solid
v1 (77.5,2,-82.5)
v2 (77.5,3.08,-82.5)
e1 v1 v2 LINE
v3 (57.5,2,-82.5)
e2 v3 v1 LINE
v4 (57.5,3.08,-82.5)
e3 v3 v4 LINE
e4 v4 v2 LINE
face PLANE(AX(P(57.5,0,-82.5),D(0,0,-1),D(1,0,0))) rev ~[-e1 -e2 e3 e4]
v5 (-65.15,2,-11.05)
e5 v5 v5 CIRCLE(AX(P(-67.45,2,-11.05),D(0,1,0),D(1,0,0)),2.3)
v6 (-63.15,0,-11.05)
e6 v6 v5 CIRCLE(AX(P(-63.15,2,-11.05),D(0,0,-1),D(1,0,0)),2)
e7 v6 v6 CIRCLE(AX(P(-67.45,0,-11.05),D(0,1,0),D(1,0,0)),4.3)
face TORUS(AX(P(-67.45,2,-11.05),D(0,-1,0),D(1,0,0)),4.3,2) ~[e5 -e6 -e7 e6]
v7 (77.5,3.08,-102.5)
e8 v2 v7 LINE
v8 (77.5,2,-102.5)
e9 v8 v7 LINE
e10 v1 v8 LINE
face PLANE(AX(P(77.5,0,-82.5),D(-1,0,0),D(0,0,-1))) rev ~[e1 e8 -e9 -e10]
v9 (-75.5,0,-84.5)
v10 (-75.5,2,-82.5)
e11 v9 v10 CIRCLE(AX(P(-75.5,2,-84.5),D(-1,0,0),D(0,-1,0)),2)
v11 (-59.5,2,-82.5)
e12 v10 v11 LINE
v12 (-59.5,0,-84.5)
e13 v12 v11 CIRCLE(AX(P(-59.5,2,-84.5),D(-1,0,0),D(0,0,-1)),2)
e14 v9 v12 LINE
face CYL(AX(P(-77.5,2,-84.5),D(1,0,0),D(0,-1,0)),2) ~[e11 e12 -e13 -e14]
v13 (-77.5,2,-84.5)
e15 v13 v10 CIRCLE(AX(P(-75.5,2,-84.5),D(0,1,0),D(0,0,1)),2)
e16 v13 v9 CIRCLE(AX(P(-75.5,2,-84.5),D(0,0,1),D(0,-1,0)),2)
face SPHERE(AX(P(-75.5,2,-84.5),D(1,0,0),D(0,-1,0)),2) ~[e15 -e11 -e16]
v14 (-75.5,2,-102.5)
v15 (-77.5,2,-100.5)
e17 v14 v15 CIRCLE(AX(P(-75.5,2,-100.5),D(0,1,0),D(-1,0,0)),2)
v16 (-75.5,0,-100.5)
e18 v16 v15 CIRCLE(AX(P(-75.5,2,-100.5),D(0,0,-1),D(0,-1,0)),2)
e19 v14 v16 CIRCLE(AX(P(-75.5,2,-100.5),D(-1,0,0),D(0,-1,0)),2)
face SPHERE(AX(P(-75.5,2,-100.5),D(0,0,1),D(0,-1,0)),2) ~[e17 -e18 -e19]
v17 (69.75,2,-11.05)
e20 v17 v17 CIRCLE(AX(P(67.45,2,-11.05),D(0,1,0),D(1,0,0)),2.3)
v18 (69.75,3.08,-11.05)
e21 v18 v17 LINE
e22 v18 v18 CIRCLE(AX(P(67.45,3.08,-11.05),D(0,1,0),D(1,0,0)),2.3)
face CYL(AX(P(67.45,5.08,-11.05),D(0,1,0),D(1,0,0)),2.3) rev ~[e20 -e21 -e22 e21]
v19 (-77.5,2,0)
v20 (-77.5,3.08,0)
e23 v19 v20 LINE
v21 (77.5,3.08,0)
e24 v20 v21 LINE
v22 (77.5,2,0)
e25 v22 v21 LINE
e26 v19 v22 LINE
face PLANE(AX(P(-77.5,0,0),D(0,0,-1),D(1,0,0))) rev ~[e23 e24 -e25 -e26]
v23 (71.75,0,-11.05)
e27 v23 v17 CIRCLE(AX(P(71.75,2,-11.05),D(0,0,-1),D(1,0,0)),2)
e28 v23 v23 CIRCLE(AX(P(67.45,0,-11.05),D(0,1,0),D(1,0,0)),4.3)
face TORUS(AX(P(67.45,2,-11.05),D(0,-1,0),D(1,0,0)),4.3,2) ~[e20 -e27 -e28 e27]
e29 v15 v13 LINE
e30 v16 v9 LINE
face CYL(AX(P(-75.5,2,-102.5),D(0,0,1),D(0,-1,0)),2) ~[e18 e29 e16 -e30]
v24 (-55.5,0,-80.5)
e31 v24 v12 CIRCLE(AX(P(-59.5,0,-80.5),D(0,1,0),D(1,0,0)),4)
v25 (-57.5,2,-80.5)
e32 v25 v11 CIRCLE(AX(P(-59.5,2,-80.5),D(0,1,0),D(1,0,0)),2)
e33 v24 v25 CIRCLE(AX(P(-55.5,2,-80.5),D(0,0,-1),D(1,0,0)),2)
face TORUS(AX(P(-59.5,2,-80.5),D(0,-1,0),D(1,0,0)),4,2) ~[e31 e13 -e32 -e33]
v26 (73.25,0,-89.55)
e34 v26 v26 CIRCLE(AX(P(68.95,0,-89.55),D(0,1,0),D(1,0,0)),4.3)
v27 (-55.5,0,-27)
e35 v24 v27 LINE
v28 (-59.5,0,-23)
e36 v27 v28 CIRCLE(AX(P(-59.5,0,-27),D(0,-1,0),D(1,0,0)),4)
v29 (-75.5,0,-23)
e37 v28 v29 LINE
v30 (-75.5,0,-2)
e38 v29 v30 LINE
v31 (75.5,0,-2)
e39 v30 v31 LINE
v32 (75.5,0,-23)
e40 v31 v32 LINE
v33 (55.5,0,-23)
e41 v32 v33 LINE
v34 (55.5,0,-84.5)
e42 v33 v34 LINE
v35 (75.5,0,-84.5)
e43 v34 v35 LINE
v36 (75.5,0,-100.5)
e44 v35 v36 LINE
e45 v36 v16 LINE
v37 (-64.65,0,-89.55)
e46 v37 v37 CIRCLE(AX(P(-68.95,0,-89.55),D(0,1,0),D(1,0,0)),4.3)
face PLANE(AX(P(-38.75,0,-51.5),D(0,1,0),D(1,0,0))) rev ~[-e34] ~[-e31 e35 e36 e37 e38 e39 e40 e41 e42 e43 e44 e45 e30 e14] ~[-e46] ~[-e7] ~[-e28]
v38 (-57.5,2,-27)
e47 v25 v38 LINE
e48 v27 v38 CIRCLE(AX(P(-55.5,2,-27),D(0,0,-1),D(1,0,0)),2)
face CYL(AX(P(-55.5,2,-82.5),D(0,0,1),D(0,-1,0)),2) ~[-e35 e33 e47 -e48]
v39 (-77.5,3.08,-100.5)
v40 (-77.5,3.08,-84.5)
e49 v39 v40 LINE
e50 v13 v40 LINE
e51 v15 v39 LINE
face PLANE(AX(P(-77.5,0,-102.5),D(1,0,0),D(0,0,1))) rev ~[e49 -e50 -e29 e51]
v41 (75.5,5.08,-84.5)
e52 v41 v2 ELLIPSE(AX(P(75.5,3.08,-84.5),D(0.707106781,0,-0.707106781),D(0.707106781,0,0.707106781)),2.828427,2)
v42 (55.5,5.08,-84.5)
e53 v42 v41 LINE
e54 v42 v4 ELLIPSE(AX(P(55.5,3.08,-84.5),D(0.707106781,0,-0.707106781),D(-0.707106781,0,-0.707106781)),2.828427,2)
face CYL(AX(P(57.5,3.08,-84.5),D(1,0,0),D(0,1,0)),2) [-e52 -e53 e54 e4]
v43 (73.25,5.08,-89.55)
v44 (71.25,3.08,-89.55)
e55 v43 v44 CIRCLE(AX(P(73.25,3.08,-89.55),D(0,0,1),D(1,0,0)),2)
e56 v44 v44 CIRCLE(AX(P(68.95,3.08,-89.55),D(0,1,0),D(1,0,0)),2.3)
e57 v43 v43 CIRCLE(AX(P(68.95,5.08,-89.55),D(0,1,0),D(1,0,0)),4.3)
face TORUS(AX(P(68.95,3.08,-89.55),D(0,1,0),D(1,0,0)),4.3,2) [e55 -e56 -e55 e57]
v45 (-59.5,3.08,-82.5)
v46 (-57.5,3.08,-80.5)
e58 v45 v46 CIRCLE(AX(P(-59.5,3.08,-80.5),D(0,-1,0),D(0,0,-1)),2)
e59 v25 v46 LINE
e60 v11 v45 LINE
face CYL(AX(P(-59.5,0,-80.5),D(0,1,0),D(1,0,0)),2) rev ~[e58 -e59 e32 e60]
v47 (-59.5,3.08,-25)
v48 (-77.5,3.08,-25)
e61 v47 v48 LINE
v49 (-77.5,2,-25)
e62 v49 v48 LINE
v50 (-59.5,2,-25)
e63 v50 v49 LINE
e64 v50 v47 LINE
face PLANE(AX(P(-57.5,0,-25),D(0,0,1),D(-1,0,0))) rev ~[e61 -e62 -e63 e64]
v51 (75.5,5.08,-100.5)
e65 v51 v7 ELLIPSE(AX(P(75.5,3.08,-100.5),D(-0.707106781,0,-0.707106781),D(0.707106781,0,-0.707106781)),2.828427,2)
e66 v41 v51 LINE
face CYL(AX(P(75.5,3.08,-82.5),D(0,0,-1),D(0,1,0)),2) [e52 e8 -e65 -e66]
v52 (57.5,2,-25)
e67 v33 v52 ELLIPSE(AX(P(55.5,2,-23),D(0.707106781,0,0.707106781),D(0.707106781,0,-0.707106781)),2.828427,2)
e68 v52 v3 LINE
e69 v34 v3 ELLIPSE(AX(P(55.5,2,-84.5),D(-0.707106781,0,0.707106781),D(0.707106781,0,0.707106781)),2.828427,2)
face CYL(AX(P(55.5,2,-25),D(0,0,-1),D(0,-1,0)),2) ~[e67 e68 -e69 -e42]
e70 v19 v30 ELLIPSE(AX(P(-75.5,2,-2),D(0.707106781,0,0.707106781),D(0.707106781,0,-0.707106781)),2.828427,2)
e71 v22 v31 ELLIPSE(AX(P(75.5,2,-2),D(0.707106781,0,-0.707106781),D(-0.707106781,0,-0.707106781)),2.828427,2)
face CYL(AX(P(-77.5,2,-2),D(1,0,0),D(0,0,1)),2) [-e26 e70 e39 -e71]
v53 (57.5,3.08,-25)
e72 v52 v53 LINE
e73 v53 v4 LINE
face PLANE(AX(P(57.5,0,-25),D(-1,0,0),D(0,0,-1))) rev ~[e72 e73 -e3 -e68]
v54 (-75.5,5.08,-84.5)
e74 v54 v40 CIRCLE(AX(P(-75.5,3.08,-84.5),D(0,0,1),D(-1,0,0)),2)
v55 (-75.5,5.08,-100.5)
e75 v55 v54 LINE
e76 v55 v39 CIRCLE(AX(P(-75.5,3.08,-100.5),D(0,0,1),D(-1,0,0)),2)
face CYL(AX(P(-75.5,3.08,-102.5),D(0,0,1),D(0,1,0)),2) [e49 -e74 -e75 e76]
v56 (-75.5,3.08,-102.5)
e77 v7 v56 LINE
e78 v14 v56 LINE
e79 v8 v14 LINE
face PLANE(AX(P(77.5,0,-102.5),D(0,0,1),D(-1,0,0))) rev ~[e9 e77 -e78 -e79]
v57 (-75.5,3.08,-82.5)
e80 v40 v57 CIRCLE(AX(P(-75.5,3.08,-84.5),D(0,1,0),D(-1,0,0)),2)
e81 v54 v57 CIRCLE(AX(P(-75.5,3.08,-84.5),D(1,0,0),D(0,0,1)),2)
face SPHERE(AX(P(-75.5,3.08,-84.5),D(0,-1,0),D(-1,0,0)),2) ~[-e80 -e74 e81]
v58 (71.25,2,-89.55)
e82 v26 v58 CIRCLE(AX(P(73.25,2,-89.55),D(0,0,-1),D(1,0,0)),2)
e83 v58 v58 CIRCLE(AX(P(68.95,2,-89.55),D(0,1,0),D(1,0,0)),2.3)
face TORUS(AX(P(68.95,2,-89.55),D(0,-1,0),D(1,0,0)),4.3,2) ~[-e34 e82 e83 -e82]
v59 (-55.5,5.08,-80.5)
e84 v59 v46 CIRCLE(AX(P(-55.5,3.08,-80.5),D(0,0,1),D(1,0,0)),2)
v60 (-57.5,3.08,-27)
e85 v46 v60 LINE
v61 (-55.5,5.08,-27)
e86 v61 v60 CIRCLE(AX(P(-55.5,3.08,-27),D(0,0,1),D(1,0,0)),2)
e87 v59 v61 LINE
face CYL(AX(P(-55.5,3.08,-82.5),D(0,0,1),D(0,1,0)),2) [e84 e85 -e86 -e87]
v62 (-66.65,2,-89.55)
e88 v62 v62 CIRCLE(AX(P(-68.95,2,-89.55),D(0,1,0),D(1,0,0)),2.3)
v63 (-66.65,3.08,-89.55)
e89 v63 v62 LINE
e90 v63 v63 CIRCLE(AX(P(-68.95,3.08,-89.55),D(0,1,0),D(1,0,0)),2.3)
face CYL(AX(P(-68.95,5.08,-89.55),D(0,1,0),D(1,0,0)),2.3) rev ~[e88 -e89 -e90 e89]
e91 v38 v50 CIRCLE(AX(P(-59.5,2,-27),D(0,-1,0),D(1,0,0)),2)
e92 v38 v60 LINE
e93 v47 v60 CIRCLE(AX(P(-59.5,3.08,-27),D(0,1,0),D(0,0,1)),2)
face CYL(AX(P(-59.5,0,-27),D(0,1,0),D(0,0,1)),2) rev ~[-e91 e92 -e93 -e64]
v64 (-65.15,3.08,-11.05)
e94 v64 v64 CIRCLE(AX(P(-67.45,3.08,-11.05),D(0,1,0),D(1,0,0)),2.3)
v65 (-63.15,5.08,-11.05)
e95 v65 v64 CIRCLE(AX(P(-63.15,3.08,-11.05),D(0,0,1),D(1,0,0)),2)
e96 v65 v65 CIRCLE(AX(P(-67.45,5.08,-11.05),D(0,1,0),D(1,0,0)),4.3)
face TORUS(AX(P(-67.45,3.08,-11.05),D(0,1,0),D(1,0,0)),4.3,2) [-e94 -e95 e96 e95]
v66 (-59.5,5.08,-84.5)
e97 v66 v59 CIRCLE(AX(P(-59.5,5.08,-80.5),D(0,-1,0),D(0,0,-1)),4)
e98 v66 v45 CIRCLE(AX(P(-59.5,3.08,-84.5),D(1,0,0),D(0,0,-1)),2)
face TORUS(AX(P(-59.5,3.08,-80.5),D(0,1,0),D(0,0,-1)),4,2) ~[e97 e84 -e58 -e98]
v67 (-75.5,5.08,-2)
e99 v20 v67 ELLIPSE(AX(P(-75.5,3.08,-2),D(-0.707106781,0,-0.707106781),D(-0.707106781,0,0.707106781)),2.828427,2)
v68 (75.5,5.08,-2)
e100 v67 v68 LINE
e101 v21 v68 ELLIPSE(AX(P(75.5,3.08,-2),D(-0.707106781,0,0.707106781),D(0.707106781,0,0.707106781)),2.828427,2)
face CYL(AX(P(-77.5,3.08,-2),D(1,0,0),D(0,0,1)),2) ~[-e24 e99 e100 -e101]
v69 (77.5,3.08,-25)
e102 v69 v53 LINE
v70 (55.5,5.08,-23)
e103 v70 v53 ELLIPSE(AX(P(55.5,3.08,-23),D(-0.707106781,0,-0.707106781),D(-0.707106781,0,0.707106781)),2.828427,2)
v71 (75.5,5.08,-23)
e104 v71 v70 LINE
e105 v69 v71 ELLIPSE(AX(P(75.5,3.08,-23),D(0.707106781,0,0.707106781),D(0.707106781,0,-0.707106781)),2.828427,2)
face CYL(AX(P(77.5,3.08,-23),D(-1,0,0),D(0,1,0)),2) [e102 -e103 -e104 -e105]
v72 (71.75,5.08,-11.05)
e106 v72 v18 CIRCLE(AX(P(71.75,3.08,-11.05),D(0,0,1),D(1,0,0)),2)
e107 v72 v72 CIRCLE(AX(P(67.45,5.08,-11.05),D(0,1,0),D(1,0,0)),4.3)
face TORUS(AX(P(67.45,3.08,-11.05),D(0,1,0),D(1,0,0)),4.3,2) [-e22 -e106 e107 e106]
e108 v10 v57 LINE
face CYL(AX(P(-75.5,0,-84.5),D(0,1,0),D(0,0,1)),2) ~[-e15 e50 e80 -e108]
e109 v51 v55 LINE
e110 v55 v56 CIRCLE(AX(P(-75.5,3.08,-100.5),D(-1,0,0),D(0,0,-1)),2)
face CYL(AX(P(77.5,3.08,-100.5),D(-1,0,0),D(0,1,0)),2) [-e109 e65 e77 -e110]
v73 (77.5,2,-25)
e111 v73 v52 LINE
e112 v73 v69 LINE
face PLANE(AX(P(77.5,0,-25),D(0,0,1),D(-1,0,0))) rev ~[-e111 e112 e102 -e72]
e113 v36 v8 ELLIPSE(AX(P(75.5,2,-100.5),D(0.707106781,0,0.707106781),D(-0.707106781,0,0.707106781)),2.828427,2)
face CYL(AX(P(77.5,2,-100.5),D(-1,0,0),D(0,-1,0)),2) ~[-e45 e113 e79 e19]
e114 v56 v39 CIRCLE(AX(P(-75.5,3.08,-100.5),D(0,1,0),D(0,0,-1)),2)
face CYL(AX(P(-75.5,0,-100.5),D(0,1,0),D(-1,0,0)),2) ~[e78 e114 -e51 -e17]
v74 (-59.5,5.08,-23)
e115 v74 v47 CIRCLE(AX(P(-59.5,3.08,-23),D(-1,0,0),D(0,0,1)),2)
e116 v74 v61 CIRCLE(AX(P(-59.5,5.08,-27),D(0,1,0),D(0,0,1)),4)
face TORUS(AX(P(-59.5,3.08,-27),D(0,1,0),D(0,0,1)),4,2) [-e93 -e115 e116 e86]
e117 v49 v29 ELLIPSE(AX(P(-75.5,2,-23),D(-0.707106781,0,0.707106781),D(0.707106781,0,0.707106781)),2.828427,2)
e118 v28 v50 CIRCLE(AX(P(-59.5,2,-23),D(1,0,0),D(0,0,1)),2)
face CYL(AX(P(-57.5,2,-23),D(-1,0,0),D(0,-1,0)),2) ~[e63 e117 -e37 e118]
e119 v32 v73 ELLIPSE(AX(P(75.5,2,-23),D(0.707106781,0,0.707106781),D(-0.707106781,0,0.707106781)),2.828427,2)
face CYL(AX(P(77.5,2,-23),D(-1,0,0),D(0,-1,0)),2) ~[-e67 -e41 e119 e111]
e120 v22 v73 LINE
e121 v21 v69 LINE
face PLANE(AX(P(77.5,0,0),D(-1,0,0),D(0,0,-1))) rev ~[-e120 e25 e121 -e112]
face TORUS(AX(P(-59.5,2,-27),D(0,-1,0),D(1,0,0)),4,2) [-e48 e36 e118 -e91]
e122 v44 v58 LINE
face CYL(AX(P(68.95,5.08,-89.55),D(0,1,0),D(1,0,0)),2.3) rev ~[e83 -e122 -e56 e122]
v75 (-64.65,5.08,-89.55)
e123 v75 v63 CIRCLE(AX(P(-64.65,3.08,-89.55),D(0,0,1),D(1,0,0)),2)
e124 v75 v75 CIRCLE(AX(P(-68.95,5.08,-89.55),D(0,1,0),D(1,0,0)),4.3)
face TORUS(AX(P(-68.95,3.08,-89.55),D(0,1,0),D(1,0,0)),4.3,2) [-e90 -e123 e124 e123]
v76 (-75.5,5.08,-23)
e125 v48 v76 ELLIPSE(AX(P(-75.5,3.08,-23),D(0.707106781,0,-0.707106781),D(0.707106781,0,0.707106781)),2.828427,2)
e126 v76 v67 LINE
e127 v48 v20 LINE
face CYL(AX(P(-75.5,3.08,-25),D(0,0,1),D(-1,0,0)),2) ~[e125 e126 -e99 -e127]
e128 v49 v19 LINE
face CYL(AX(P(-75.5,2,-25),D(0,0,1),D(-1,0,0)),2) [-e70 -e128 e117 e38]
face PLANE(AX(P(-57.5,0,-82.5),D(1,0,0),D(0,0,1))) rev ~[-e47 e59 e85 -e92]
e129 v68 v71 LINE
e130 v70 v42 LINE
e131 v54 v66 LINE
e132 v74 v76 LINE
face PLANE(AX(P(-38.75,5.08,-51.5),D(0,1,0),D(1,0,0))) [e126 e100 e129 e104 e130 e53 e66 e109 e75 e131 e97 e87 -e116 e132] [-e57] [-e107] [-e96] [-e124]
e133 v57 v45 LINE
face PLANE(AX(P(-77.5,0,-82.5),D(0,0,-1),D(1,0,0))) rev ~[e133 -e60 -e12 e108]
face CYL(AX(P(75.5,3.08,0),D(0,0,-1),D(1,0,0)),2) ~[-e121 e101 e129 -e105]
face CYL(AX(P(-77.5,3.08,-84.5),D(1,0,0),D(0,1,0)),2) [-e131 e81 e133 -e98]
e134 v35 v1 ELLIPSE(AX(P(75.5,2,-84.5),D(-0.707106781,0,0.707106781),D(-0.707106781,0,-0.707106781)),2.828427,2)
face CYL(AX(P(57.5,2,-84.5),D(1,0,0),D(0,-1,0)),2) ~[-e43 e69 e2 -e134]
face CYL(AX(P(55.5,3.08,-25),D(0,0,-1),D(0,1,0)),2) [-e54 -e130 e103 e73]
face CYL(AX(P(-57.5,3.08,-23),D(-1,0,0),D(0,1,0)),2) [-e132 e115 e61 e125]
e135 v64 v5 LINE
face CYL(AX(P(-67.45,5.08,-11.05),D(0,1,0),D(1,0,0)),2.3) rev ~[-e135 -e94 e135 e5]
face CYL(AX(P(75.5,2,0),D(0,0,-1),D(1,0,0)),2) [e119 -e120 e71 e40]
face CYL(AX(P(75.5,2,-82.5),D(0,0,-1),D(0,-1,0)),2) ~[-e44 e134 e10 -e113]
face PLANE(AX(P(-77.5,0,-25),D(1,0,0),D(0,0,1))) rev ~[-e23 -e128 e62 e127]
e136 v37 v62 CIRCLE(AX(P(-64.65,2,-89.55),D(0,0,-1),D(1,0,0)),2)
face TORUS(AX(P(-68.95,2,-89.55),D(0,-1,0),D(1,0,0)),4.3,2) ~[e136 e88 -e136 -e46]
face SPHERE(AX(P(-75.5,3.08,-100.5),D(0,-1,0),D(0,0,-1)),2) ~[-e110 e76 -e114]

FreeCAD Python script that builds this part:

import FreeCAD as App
import Part
import Sketcher

V = App.Vector


def edges_at(feature, points):
    """Names of the edges that pass closest to the given points."""
    edges = feature.Shape.Edges
    near = lambda p: min(range(len(edges)), key=lambda i: edges[i].distToShape(Part.Vertex(*p))[0])
    return sorted({f"Edge{near(p) + 1}" for p in points})


def add_polygon(sketch, points):
    """Adds a closed chain of lines whose ends are joined by coincident constraints."""
    first, n = sketch.GeometryCount, len(points)
    for a, b in zip(points, points[1:] + points[:1]):
        sketch.addGeometry(Part.LineSegment(App.Vector(*a, 0), App.Vector(*b, 0)), False)
    for i in range(n):
        sketch.addConstraint(Sketcher.Constraint("Coincident", first + i, 2, first + (i + 1) % n, 1))

doc = App.newDocument("Part")
body = doc.addObject("PartDesign::Body", "Body")

sketch1 = body.newObject("Sketcher::SketchObject", "Sketch")
sketch1.AttachmentSupport = (doc.getObject("XZ_Plane"), [""])
sketch1.MapMode = "FlatFace"
add_polygon(sketch1, [(-78, 0), (78, 0), (78, -25), (58, -25), (58, -82), (78, -82), (78, -102), (-78, -102), (-78, -82), (-58, -82), (-58, -25), (-78, -25)])
sketch1.addConstraint(Sketcher.Constraint("Horizontal", 0))
sketch1.addConstraint(Sketcher.Constraint("Vertical", 1))
sketch1.addConstraint(Sketcher.Constraint("Horizontal", 2))
sketch1.addConstraint(Sketcher.Constraint("Vertical", 3))
sketch1.addConstraint(Sketcher.Constraint("Horizontal", 4))
sketch1.addConstraint(Sketcher.Constraint("Vertical", 5))
sketch1.addConstraint(Sketcher.Constraint("Horizontal", 6))
sketch1.addConstraint(Sketcher.Constraint("Vertical", 7))
sketch1.addConstraint(Sketcher.Constraint("Horizontal", 8))
sketch1.addConstraint(Sketcher.Constraint("Vertical", 9))
sketch1.addConstraint(Sketcher.Constraint("Horizontal", 10))
sketch1.addConstraint(Sketcher.Constraint("Vertical", 11))
sketch1.addConstraint(Sketcher.Constraint("Symmetric", 0, 2, 11, 2, -1, 1))
sketch1.addConstraint(Sketcher.Constraint("Symmetric", 4, 2, 7, 2, -2))
sketch1.addConstraint(Sketcher.Constraint("Symmetric", 2, 2, 9, 2, -2))
sketch1.addConstraint(Sketcher.Constraint("Vertical", 1, 2, 4, 2))
sketch1.addConstraint(Sketcher.Constraint("Equal", 10, 5))
sketch1.addConstraint(Sketcher.Constraint("DistanceX", 0, 1, 0, 2, 155.0))
sketch1.addConstraint(Sketcher.Constraint("DistanceX", 2, 2, 2, 1, 20.0))
sketch1.addConstraint(Sketcher.Constraint("DistanceY", 1, 2, 1, 1, 25.0))
sketch1.addConstraint(Sketcher.Constraint("DistanceY", 3, 2, 3, 1, 57.5))
pad1 = body.newObject("PartDesign::Pad", "Pad")
pad1.Profile = sketch1
pad1.Length = 5.08
pad1.Reversed = True

sketch2 = body.newObject("Sketcher::SketchObject", "Sketch001")
sketch2.AttachmentSupport = (doc.getObject("XZ_Plane"), [""])
sketch2.MapMode = "FlatFace"
sketch2.AttachmentOffset = App.Placement(V(0, 0, -5.08), App.Rotation())
sketch2.addGeometry(Part.Circle(V(-69, -89.5, 0), V(0, 0, 1), 2.3), False)
sketch2.addGeometry(Part.Circle(V(69, -89.5, 0), V(0, 0, 1), 2.3), False)
sketch2.addGeometry(Part.Circle(V(-67.5, -11.1, 0), V(0, 0, 1), 2.3), False)
sketch2.addGeometry(Part.Circle(V(67.5, -11.1, 0), V(0, 0, 1), 2.3), False)
sketch2.addConstraint(Sketcher.Constraint("Equal", 0, 1))
sketch2.addConstraint(Sketcher.Constraint("Equal", 1, 2))
sketch2.addConstraint(Sketcher.Constraint("Equal", 2, 3))
sketch2.addConstraint(Sketcher.Constraint("Symmetric", 0, 3, 1, 3, -2))
sketch2.addConstraint(Sketcher.Constraint("Symmetric", 2, 3, 3, 3, -2))
sketch2.addConstraint(Sketcher.Constraint("Diameter", 0, 4.6))
sketch2.addConstraint(Sketcher.Constraint("DistanceX", 0, 3, 1, 3, 137.9))
sketch2.addConstraint(Sketcher.Constraint("DistanceX", 0, 3, 2, 3, 1.5))
sketch2.addConstraint(Sketcher.Constraint("DistanceY", 0, 3, 2, 3, 78.5))
sketch2.addConstraint(Sketcher.Constraint("DistanceY", 0, 3, -1, 1, 89.55))
pocket1 = body.newObject("PartDesign::Pocket", "Pocket")
pocket1.Profile = sketch2
pocket1.Length = 5.08
pocket1.Reversed = True
doc.recompute()

fillet = body.newObject("PartDesign::Fillet", "Fillet")
fillet.Base = (pocket1, edges_at(pocket1, [
    (-77.5, 5.08, -12.5),
    (-57.5, 0, -53.75),
    (-67.5, 0, -82.5),
    (-77.5, 0, -92.5),
    (0, 5.08, 0),
    (0, 0, -102.5),
    (77.5, 0, -92.5),
    (67.5, 0, -82.5),
    (57.5, 0, -53.75),
    (67.5, 0, -25),
    (77.5, 0, -12.5),
    (0, 0, 0),
    (-77.5, 0, -12.5),
    (-67.5, 0, -25),
    (77.5, 5.08, -12.5),
    (-57.5, 2.54, -25),
    (-57.5, 2.54, -82.5),
    (-77.5, 2.54, -82.5),
    (-77.5, 2.54, -102.5),
    (67.5, 5.08, -25),
    (57.5, 5.08, -53.75),
    (67.5, 5.08, -82.5),
    (77.5, 5.08, -92.5),
    (0, 5.08, -102.5),
    (66.65, 5.08, -89.55),
    (-67.5, 5.08, -25),
    (66.65, 0, -89.55),
    (-69.75, 5.08, -11.05),
    (-77.5, 5.08, -92.5),
    (-69.75, 0, -11.05),
    (65.15, 5.08, -11.05),
    (65.15, 0, -11.05),
    (-71.25, 5.08, -89.55),
    (-71.25, 0, -89.55),
    (-67.5, 5.08, -82.5),
    (-57.5, 5.08, -53.75),
]))
fillet.Radius = 2

doc.recompute()
